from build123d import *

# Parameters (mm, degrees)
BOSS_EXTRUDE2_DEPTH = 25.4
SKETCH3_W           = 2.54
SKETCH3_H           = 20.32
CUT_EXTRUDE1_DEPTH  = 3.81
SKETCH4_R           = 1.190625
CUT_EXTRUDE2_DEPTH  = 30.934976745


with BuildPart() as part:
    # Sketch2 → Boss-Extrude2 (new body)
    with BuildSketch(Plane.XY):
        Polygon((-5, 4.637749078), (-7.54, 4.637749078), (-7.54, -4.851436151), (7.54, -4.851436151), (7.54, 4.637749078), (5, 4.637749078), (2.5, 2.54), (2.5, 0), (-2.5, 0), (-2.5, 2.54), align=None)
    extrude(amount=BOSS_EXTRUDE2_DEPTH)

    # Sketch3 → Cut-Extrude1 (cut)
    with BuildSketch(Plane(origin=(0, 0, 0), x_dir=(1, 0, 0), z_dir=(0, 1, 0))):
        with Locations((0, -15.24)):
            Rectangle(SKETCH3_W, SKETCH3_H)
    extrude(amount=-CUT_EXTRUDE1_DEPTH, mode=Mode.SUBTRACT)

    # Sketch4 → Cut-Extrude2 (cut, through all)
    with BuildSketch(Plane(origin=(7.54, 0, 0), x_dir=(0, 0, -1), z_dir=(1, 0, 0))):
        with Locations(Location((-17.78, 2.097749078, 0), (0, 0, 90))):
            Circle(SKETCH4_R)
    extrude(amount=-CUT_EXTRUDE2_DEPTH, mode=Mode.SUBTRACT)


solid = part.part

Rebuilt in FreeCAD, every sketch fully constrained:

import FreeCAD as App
import Part
import Sketcher

V = App.Vector
Q = App.Units.Quantity


def add_polygon(sketch, points):
    """Adds a closed chain of lines whose ends are joined by coincident constraints."""
    first, n = sketch.GeometryCount, len(points)
    for a, b in zip(points, points[1:] + points[:1]):
        sketch.addGeometry(Part.LineSegment(App.Vector(*a, 0), App.Vector(*b, 0)), False)
    for i in range(n):
        sketch.addConstraint(Sketcher.Constraint("Coincident", first + i, 2, first + (i + 1) % n, 1))

doc = App.newDocument("Part")
body = doc.addObject("PartDesign::Body", "Body")

# Sketch on XY plane
sketch1 = body.newObject("Sketcher::SketchObject", "Sketch")
sketch1.AttachmentSupport = (doc.getObject("XY_Plane"), [""])
sketch1.MapMode = "FlatFace"
add_polygon(sketch1, [(-5, 4.6), (-7.5, 4.6), (-7.5, -4.9), (7.5, -4.9), (7.5, 4.6), (5, 4.6), (2.5, 2.5), (2.5, 0), (-2.5, 0), (-2.5, 2.5)])  # lines 0-9
sketch1.addConstraint([
    Sketcher.Constraint("Horizontal", 0),
    Sketcher.Constraint("Vertical", 1),
    Sketcher.Constraint("Horizontal", 2),
    Sketcher.Constraint("Vertical", 3),
    Sketcher.Constraint("Horizontal", 4),
    Sketcher.Constraint("Vertical", 6),
    Sketcher.Constraint("Horizontal", 7),
    Sketcher.Constraint("Vertical", 8),
    Sketcher.Constraint("Symmetric", 6, 2, 7, 2, -1, 1),
    Sketcher.Constraint("Symmetric", 0, 2, 3, 2, -2),
    Sketcher.Constraint("Horizontal", 5, 2, 8, 2),
    Sketcher.Constraint("Equal", 0, 4),
    Sketcher.Constraint("Equal", 4, 6),
    Sketcher.Constraint("DistanceX", 0, 2, 0, 1, Q("0.1 in")),
    Sketcher.Constraint("Angle", 5, Q("-140 deg")),
    Sketcher.Constraint("DistanceX", 2, 1, 2, 2, Q("15.08 mm")),
    Sketcher.Constraint("DistanceX", 7, 2, 7, 1, Q("5 mm")),
    Sketcher.Constraint("DistanceY", 1, 2, 1, 1, Q("9.489185 mm")),
])
pad1 = body.newObject("PartDesign::Pad", "Pad")
pad1.Profile = sketch1
pad1.Length = Q("1 in")

# Sketch on XZ plane
sketch2 = body.newObject("Sketcher::SketchObject", "Sketch001")
sketch2.AttachmentSupport = (doc.getObject("XZ_Plane"), [""])
sketch2.MapMode = "FlatFace"
add_polygon(sketch2, [(-1.3, 5.1), (-1.3, 25.4), (1.3, 25.4), (1.3, 5.1)])  # lines 0-3
sketch2.addConstraint([
    Sketcher.Constraint("Vertical", 0),
    Sketcher.Constraint("Horizontal", 1),
    Sketcher.Constraint("Vertical", 2),
    Sketcher.Constraint("Horizontal", 3),
    Sketcher.Constraint("DistanceX", 1, 1, 1, 2, Q("0.1 in")),
    Sketcher.Constraint("DistanceY", 0, 1, 0, 2, Q("0.8 in")),
    Sketcher.Constraint("DistanceY", -1, 1, 0, 2, Q("1 in")),
    Sketcher.Constraint("DistanceX", 0, 2, -1, 1, Q("0.05 in")),
])
pocket1 = body.newObject("PartDesign::Pocket", "Pocket")
pocket1.Profile = sketch2
pocket1.Length = Q("0.15 in")
pocket1.Reversed = True

# Sketch on YZ plane
sketch3 = body.newObject("Sketcher::SketchObject", "Sketch002")
sketch3.AttachmentSupport = (doc.getObject("YZ_Plane"), [""])
sketch3.MapMode = "FlatFace"
sketch3.AttachmentOffset = App.Placement(V(0, 0, 7.54), App.Rotation())
sketch3.addGeometry(Part.Circle(V(2.1, 17.8, 0), V(0, 0, 1), 1.2), False)
sketch3.addConstraint([
    Sketcher.Constraint("Diameter", 0, Q("0.09375 in")),
    Sketcher.Constraint("DistanceY", -1, 1, 0, 3, Q("0.7 in")),
    Sketcher.Constraint("DistanceX", -1, 1, 0, 3, Q("2.097749 mm")),
])
pocket2 = body.newObject("PartDesign::Pocket", "Pocket001")
pocket2.Profile = sketch3
pocket2.Type = "ThroughAll"

doc.recompute()
